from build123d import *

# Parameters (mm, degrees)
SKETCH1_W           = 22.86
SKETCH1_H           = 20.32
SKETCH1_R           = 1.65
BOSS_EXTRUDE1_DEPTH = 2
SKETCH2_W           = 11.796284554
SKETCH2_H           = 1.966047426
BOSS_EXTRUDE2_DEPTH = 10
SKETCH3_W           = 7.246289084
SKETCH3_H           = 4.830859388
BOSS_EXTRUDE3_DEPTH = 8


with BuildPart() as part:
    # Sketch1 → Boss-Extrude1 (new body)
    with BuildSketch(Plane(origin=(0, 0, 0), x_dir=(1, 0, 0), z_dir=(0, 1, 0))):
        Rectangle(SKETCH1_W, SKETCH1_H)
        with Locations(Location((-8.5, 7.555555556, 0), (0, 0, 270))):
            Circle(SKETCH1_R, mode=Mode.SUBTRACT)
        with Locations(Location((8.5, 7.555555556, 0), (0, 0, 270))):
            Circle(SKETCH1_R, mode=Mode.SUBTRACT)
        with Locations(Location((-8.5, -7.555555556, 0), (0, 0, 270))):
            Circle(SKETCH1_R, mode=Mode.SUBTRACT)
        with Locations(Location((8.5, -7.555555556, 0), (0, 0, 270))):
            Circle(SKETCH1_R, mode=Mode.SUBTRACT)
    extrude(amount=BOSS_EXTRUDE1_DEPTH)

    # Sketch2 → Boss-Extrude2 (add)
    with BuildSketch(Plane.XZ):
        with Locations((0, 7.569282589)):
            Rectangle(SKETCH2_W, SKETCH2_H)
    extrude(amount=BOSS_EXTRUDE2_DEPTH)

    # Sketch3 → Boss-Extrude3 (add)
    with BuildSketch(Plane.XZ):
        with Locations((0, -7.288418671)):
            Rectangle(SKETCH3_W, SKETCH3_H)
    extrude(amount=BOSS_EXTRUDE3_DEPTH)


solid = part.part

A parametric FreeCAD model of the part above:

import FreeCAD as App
import Part
import Sketcher
from FreeCAD import Vector
Q = App.Units.Quantity


def add_polygon(sketch, points):
    """Adds a closed chain of lines whose ends are joined by coincident constraints."""
    first, n = sketch.GeometryCount, len(points)
    for a, b in zip(points, points[1:] + points[:1]):
        sketch.addGeometry(Part.LineSegment(App.Vector(*a, 0), App.Vector(*b, 0)), False)
    for i in range(n):
        sketch.addConstraint(Sketcher.Constraint("Coincident", first + i, 2, first + (i + 1) % n, 1))

doc = App.newDocument("Part")
body = doc.addObject("PartDesign::Body", "Body")

sketch1 = body.newObject("Sketcher::SketchObject", "Sketch")
sketch1.AttachmentSupport = (doc.getObject("XZ_Plane"), [""])
sketch1.MapMode = "FlatFace"
add_polygon(sketch1, [(-11.4, -10.2), (-11.4, 10.2), (11.4, 10.2), (11.4, -10.2)])
sketch1.addGeometry(Part.Circle(Vector(-8.5, 7.6, 0), Vector(0, 0, 1), 1.6), False)
sketch1.addGeometry(Part.Circle(Vector(8.5, 7.6, 0), Vector(0, 0, 1), 1.6), False)
sketch1.addGeometry(Part.Circle(Vector(-8.5, -7.6, 0), Vector(0, 0, 1), 1.6), False)
sketch1.addGeometry(Part.Circle(Vector(8.5, -7.6, 0), Vector(0, 0, 1), 1.6), False)
sketch1.addConstraint([
    Sketcher.Constraint("Vertical", 0),
    Sketcher.Constraint("Horizontal", 1),
    Sketcher.Constraint("Vertical", 2),
    Sketcher.Constraint("Horizontal", 3),
    Sketcher.Constraint("Equal", 4, 5),
    Sketcher.Constraint("Equal", 5, 6),
    Sketcher.Constraint("Equal", 6, 7),
    Sketcher.Constraint("Symmetric", 5, 3, 6, 3, -1, 1),
    Sketcher.Constraint("Symmetric", 4, 3, 7, 3, -1, 1),
    Sketcher.Constraint("Symmetric", 0, 2, 2, 2, -1, 1),
    Sketcher.Constraint("Symmetric", 4, 3, 5, 3, -2),
    Sketcher.Constraint("Diameter", 4, Q("3.3 mm")),
    Sketcher.Constraint("DistanceX", 4, 3, 5, 3, Q("17 mm")),
    Sketcher.Constraint("DistanceX", 1, 1, 1, 2, Q("22.86 mm")),
    Sketcher.Constraint("DistanceY", 0, 1, 0, 2, Q("20.32 mm")),
    Sketcher.Constraint("DistanceY", 6, 3, 4, 3, Q("15.111111 mm")),
])
pad1 = body.newObject("PartDesign::Pad", "Pad")
pad1.Profile = sketch1
pad1.Length = 2
pad1.Reversed = True

sketch2 = body.newObject("Sketcher::SketchObject", "Sketch001")
sketch2.AttachmentSupport = (doc.getObject("XZ_Plane"), [""])
sketch2.MapMode = "FlatFace"
add_polygon(sketch2, [(-5.9, 8.6), (-5.9, 6.6), (5.9, 6.6), (5.9, 8.6)])
sketch2.addConstraint([
    Sketcher.Constraint("Vertical", 0),
    Sketcher.Constraint("Horizontal", 1),
    Sketcher.Constraint("Vertical", 2),
    Sketcher.Constraint("Horizontal", 3),
    Sketcher.Constraint("DistanceX", 1, 1, 1, 2, Q("11.796285 mm")),
    Sketcher.Constraint("DistanceY", 0, 2, 0, 1, Q("1.966047 mm")),
    Sketcher.Constraint("DistanceY", -1, 1, 0, 2, Q("6.586259 mm")),
    Sketcher.Constraint("DistanceX", 0, 2, -1, 1, Q("5.898142 mm")),
])
pad2 = body.newObject("PartDesign::Pad", "Pad001")
pad2.Profile = sketch2
pad2.Length = 10

sketch3 = body.newObject("Sketcher::SketchObject", "Sketch002")
sketch3.AttachmentSupport = (doc.getObject("XZ_Plane"), [""])
sketch3.MapMode = "FlatFace"
add_polygon(sketch3, [(-3.6, -4.9), (-3.6, -9.7), (3.6, -9.7), (3.6, -4.9)])
sketch3.addConstraint([
    Sketcher.Constraint("Vertical", 0),
    Sketcher.Constraint("Horizontal", 1),
    Sketcher.Constraint("Vertical", 2),
    Sketcher.Constraint("Horizontal", 3),
    Sketcher.Constraint("DistanceX", 1, 1, 1, 2, Q("7.246289 mm")),
    Sketcher.Constraint("DistanceY", 0, 2, 0, 1, Q("4.830859 mm")),
    Sketcher.Constraint("DistanceY", 0, 2, -1, 1, Q("9.703848 mm")),
    Sketcher.Constraint("DistanceX", 0, 2, -1, 1, Q("3.623145 mm")),
])
pad3 = body.newObject("PartDesign::Pad", "Pad002")
pad3.Profile = sketch3
pad3.Length = 8

doc.recompute()
